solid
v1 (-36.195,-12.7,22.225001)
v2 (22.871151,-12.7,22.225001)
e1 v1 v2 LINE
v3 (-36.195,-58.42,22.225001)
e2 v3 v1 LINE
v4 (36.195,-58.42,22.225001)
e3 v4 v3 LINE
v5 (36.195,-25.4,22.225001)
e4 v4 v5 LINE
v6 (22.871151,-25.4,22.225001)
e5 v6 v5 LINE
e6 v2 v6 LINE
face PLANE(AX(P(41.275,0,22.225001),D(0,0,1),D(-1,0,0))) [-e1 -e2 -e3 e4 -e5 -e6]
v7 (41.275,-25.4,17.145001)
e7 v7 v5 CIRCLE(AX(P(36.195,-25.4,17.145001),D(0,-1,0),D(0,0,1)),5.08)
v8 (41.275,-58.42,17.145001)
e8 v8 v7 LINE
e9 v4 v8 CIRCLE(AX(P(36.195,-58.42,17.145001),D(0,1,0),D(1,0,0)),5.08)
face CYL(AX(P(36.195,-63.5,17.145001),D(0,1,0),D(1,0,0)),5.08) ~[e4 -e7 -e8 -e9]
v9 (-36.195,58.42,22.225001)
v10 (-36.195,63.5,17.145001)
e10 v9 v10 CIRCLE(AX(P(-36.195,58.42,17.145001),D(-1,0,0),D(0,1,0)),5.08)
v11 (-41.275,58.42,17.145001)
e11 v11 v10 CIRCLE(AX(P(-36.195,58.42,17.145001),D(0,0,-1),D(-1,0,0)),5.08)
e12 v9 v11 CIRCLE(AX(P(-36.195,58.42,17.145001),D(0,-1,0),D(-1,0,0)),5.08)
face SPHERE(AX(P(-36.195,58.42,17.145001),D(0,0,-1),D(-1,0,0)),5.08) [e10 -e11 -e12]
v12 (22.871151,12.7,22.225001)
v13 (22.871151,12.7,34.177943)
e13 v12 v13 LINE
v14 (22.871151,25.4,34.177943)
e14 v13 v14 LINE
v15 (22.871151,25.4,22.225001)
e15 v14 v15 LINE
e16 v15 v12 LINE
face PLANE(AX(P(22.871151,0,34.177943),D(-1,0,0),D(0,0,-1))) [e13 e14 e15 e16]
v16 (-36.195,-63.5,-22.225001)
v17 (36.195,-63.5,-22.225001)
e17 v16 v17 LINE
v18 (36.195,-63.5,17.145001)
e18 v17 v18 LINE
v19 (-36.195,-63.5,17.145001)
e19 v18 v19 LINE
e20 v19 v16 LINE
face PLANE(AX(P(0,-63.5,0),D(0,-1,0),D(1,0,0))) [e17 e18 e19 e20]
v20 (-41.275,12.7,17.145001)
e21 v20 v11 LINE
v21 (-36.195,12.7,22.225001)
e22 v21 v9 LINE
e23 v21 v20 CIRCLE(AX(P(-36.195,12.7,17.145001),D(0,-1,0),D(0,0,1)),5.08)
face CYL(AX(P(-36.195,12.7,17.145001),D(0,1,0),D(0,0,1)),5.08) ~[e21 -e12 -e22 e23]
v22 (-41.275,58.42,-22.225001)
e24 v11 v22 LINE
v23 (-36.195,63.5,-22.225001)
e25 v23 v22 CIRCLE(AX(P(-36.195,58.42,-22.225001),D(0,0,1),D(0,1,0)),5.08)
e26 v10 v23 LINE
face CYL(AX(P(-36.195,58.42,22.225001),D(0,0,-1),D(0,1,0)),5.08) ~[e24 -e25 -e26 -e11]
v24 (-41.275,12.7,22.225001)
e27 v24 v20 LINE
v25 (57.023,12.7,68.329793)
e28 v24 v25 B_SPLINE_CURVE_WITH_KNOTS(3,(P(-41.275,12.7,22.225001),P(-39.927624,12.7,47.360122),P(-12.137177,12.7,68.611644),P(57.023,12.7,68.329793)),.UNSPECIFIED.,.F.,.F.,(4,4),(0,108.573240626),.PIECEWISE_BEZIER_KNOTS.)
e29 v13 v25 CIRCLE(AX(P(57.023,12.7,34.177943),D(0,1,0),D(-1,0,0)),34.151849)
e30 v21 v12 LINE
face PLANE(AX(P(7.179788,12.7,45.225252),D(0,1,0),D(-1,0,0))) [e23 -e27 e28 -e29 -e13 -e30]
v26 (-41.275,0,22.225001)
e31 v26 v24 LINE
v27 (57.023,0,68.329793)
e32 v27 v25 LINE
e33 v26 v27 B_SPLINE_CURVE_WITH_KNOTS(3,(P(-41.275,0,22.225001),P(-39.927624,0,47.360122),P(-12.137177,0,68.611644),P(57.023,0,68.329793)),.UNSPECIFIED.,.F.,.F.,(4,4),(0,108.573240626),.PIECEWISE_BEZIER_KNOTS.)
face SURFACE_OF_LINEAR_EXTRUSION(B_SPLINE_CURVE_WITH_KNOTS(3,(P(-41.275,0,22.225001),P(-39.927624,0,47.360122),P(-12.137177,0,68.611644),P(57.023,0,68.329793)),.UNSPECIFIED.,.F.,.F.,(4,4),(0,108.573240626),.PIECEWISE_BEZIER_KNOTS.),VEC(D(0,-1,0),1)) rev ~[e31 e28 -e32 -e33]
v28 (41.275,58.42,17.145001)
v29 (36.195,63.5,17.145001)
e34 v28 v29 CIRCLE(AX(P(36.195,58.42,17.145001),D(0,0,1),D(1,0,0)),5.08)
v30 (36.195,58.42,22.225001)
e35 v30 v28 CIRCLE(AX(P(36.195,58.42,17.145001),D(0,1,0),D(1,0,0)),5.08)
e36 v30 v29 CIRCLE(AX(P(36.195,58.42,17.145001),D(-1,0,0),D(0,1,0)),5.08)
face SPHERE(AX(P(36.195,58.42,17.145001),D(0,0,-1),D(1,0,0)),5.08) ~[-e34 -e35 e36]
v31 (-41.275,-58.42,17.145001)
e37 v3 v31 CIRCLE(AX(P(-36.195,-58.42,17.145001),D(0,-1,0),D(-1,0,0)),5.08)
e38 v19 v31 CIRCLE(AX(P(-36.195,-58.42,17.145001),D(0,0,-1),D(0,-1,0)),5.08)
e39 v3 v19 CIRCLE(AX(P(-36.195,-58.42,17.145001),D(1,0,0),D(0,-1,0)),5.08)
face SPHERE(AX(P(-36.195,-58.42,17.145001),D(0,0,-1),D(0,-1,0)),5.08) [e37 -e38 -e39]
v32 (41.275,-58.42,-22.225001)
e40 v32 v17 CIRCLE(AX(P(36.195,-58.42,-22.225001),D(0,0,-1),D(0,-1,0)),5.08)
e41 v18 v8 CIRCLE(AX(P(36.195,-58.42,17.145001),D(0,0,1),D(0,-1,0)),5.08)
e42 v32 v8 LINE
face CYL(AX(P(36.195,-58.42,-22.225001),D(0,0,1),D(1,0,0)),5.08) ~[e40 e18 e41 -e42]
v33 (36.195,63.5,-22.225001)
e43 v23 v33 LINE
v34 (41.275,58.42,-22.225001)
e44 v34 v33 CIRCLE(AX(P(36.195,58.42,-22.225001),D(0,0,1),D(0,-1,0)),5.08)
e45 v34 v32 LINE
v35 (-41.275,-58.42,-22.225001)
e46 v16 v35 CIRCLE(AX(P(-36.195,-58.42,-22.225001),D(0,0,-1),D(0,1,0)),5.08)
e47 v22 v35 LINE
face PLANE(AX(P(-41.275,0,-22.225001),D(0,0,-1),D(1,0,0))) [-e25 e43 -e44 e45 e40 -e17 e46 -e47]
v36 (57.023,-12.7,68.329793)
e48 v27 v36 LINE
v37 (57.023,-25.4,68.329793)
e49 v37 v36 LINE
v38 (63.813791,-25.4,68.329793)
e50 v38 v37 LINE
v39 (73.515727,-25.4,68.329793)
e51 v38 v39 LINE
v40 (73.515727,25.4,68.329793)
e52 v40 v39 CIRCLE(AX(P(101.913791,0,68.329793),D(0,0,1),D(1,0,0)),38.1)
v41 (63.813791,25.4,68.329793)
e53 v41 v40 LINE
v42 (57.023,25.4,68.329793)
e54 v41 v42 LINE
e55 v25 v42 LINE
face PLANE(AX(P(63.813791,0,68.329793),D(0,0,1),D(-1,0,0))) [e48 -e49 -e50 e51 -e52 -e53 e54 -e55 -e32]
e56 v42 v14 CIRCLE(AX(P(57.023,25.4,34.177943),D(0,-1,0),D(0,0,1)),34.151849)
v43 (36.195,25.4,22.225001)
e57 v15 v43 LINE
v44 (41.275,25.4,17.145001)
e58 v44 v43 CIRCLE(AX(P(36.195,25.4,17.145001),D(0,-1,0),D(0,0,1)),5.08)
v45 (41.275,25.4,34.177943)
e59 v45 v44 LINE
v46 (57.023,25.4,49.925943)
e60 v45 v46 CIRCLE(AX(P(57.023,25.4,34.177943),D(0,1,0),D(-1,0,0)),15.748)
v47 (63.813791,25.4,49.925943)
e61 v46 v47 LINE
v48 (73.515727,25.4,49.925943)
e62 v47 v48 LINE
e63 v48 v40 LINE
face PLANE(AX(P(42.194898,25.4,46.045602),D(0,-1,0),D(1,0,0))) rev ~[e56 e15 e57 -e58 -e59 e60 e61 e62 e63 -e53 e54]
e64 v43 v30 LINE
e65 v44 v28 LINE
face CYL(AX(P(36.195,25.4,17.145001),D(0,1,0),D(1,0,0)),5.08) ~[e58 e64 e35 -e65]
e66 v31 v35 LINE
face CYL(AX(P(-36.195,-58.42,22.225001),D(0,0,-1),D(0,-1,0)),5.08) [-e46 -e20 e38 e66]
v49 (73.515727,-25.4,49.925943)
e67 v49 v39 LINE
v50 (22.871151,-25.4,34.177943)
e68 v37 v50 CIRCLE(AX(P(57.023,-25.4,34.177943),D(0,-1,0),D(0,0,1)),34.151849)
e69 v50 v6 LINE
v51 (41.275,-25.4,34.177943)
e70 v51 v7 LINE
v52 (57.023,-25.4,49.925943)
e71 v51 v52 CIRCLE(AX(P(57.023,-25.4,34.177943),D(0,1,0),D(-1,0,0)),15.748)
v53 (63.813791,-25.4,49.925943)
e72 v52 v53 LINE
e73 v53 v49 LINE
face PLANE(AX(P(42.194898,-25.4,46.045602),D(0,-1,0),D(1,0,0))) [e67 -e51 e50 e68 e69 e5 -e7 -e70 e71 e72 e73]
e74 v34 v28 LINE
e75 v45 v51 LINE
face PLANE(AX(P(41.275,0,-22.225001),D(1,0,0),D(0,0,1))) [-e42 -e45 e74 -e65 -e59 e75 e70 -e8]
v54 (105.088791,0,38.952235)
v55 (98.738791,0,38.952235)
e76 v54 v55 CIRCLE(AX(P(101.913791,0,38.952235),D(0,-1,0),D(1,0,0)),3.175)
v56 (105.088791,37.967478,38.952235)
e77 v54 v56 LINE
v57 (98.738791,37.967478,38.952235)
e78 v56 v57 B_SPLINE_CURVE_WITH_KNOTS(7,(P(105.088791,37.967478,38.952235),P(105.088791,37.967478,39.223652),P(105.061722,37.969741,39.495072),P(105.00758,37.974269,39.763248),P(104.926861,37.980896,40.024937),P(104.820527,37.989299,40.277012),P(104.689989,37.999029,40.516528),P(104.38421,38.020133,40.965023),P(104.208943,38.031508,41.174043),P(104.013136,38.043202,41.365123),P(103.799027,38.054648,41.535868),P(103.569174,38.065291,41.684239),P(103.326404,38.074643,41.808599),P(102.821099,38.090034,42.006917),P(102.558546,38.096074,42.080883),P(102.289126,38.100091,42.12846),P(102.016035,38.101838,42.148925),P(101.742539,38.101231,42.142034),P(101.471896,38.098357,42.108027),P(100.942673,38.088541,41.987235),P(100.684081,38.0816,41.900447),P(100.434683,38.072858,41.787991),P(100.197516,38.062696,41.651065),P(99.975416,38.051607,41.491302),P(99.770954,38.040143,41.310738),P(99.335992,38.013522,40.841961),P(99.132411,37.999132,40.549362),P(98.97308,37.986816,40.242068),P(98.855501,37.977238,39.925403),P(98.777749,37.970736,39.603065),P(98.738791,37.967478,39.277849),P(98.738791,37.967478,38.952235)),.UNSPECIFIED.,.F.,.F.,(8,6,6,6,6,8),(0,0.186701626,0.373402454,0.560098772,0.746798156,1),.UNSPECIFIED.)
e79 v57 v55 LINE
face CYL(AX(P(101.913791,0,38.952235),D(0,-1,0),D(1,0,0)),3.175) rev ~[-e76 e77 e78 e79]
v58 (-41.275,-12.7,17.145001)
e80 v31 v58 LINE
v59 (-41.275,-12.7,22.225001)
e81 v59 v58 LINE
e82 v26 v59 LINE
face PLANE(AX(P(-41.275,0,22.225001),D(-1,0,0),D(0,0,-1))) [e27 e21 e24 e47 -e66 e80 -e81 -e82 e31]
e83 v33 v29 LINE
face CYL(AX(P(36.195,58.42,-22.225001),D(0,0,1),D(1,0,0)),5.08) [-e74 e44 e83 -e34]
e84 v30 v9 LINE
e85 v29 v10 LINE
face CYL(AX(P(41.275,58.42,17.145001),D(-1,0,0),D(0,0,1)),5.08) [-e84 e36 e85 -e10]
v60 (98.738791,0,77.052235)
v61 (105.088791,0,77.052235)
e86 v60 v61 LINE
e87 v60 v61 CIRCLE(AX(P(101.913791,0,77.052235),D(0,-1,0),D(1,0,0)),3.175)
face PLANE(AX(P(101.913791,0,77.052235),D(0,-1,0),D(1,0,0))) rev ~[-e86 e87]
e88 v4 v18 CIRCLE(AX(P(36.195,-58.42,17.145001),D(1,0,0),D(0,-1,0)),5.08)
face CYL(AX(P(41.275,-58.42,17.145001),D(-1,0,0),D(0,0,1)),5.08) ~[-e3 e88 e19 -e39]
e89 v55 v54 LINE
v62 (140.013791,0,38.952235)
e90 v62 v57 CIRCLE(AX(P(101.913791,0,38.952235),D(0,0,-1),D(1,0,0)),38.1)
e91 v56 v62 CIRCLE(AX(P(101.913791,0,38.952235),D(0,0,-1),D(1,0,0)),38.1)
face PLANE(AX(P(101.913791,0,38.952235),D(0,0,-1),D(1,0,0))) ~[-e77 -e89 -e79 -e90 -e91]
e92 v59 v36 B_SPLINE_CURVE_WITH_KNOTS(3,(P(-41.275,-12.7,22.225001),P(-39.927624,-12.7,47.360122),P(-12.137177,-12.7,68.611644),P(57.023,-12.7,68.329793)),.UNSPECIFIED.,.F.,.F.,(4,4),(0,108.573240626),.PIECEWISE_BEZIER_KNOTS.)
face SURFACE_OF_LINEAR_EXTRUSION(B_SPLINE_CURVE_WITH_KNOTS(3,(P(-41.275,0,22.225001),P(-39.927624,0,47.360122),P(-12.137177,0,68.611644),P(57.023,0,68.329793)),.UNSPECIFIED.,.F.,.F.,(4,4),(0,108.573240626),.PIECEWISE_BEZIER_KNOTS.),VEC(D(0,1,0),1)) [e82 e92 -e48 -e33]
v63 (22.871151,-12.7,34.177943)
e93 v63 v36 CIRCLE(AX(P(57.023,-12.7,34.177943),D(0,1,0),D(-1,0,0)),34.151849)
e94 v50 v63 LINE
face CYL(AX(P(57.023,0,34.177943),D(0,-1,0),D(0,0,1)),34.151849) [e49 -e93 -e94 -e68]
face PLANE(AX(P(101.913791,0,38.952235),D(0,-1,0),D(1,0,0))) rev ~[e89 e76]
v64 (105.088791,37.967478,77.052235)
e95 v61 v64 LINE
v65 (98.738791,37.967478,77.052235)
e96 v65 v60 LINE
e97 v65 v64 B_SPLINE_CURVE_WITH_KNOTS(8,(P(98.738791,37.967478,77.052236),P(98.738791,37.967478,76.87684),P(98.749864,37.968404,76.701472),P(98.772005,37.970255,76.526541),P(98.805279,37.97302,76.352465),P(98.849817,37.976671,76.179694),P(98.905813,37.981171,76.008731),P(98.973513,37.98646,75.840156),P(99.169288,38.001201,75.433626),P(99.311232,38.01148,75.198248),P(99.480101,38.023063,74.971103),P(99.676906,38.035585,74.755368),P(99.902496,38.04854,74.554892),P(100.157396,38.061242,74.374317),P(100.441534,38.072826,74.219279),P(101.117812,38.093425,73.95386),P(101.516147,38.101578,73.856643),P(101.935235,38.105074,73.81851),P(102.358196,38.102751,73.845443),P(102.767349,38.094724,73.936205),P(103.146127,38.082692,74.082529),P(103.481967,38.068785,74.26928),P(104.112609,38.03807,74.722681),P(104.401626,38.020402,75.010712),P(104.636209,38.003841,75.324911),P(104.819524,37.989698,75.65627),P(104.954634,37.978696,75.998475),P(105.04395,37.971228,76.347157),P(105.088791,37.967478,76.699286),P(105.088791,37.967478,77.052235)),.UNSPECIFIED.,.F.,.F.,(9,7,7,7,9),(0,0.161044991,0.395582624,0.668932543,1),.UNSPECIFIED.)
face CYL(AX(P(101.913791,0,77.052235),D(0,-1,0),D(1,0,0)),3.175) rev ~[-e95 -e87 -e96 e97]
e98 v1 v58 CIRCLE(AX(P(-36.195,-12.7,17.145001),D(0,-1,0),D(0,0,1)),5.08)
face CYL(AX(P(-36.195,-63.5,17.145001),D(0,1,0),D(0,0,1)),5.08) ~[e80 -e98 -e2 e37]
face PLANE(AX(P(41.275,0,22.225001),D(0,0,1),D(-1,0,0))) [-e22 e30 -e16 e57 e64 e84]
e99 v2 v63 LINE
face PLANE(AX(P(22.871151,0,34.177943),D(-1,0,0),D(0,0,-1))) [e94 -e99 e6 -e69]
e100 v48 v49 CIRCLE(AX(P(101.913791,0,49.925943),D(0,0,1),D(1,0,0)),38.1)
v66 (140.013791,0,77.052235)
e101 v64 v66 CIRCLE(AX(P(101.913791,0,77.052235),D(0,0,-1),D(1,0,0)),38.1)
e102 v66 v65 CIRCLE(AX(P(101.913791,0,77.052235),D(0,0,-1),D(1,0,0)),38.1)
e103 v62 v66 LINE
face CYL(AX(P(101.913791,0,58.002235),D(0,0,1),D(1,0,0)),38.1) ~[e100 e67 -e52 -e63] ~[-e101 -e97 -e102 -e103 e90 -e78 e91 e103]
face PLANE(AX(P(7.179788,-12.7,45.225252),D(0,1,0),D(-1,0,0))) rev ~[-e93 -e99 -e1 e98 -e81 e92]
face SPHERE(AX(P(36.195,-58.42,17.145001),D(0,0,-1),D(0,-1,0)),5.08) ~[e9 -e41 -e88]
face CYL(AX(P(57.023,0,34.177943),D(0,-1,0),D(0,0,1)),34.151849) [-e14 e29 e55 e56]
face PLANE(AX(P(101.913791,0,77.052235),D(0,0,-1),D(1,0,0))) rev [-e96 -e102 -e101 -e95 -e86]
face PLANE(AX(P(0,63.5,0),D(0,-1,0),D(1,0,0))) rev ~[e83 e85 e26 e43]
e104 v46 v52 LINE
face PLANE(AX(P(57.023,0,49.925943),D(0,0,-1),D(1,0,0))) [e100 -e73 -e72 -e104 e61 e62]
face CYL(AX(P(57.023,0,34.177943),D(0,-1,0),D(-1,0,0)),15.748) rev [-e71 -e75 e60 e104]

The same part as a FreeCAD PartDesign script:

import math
import FreeCAD as App
import Part
import Sketcher
from FreeCAD import Vector
Q = App.Units.Quantity


def edges_at(feature, points):
    """Names of the edges that pass closest to the given points."""
    edges = feature.Shape.Edges
    near = lambda p: min(range(len(edges)), key=lambda i: edges[i].distToShape(Part.Vertex(*p))[0])
    return sorted({f"Edge{near(p) + 1}" for p in points})


def add_polygon(sketch, points):
    """Adds a closed chain of lines whose ends are joined by coincident constraints."""
    first, n = sketch.GeometryCount, len(points)
    for a, b in zip(points, points[1:] + points[:1]):
        sketch.addGeometry(Part.LineSegment(App.Vector(*a, 0), App.Vector(*b, 0)), False)
    for i in range(n):
        sketch.addConstraint(Sketcher.Constraint("Coincident", first + i, 2, first + (i + 1) % n, 1))

doc = App.newDocument("Part")
body = doc.addObject("PartDesign::Body", "Body")

# Sketch on XZ plane
sketch1 = doc.addObject("Sketcher::SketchObject", "Sketch")
body.addObject(sketch1)
sketch1.AttachmentSupport = (doc.XZ_Plane, [""])
sketch1.MapMode = "FlatFace"
add_polygon(sketch1, [(-41, 22), (-41, -22), (41, -22), (41, 22)])  # lines 0-3
sketch1.addConstraint([
    Sketcher.Constraint("Vertical", 0),
    Sketcher.Constraint("Horizontal", 1),
    Sketcher.Constraint("Vertical", 2),
    Sketcher.Constraint("Horizontal", 3),
    Sketcher.Constraint("Symmetric", 0, 2, 2, 2, -1, 1),
    Sketcher.Constraint("DistanceX", 1, 1, 1, 2, Q("3.25 in")),
    Sketcher.Constraint("DistanceY", 0, 2, 0, 1, Q("1.7500001 in")),
])
pad1 = doc.addObject("PartDesign::Pad", "Pad")
body.addObject(pad1)
pad1.Profile = sketch1
pad1.Length = Q("5 in")
pad1.Midplane = True

# Sketch on XZ plane
sketch2 = doc.addObject("Sketcher::SketchObject", "Sketch001")
body.addObject(sketch2)
sketch2.AttachmentSupport = (doc.XZ_Plane, [""])
sketch2.MapMode = "FlatFace"
sketch2.addGeometry([
    Part.BSplineCurve([Vector(-41.275, 22.225001, 0), Vector(-39.927624, 47.360122, 0), Vector(-12.137177, 68.611644, 0), Vector(57.023, 68.329793, 0)], [4, 4], [0, 108.573240626], False, 3, [1, 1, 1, 1], False),
    Part.LineSegment(Vector(-41.275, 22.225001, 0), Vector(22.871151, 22.225001, 0)),
    Part.LineSegment(Vector(22.871151, 22.225001, 0), Vector(22.871151, 34.177943, 0)),
    Part.ArcOfCircle(Part.Circle(Vector(57.023, 34.177943, 0), Vector(0, 0, 1), 34.151849), math.radians(90), math.radians(180)),
], False)
sketch2.addConstraint([
    Sketcher.Constraint("Block", 0),
    Sketcher.Constraint("Coincident", 0, 1, 1, 1),
    Sketcher.Constraint("Coincident", 1, 2, 2, 1),
    Sketcher.Constraint("Tangent", 2, 2, 3, 2),
    Sketcher.Constraint("Coincident", 3, 1, 0, 2),
    Sketcher.Constraint("Horizontal", 1),
    Sketcher.Constraint("Vertical", 2),
    Sketcher.Constraint("DistanceX", -1, 1, 3, 3, Q("2.245 in")),
    Sketcher.Constraint("Radius", 3, 34.151849),
])
pad2 = doc.addObject("PartDesign::Pad", "Pad001")
body.addObject(pad2)
pad2.Profile = sketch2
pad2.Length = Q("1 in")
pad2.Midplane = True

# Sketch on XZ plane
sketch3 = doc.addObject("Sketcher::SketchObject", "Sketch002")
body.addObject(sketch3)
sketch3.AttachmentSupport = (doc.XZ_Plane, [""])
sketch3.MapMode = "FlatFace"
sketch3.addGeometry([
    Part.LineSegment(Vector(23, 34, 0), Vector(23, 22, 0)),  # 0
    Part.LineSegment(Vector(23, 22, 0), Vector(41, 22, 0)),  # 1
    Part.LineSegment(Vector(41, 22, 0), Vector(41, 34, 0)),  # 2
    Part.ArcOfCircle(Part.Circle(Vector(57, 34, 0), Vector(0, 0, 1), 16), math.radians(90), math.radians(180)),  # 3
    Part.LineSegment(Vector(57, 50, 0), Vector(64, 50, 0)),  # 4
    Part.LineSegment(Vector(64, 50, 0), Vector(102, 50, 0)),  # 5
    Part.LineSegment(Vector(102, 50, 0), Vector(102, 68, 0)),  # 6
    Part.LineSegment(Vector(102, 68, 0), Vector(64, 68, 0)),  # 7
    Part.LineSegment(Vector(64, 68, 0), Vector(57, 68, 0)),  # 8
    Part.ArcOfCircle(Part.Circle(Vector(57, 34, 0), Vector(0, 0, 1), 34), math.radians(90), math.radians(180)),  # 9
], False)
sketch3.addConstraint([
    Sketcher.Constraint("Coincident", 0, 2, 1, 1),
    Sketcher.Constraint("Coincident", 1, 2, 2, 1),
    Sketcher.Constraint("Tangent", 2, 2, 3, 2),
    Sketcher.Constraint("Tangent", 3, 1, 4, 1),
    Sketcher.Constraint("Coincident", 4, 2, 5, 1),
    Sketcher.Constraint("Coincident", 5, 2, 6, 1),
    Sketcher.Constraint("Coincident", 6, 2, 7, 1),
    Sketcher.Constraint("Coincident", 7, 2, 8, 1),
    Sketcher.Constraint("Tangent", 8, 2, 9, 1),
    Sketcher.Constraint("Tangent", 9, 2, 0, 1),
    Sketcher.Constraint("Vertical", 0),
    Sketcher.Constraint("Horizontal", 1),
    Sketcher.Constraint("Vertical", 2),
    Sketcher.Constraint("Horizontal", 4),
    Sketcher.Constraint("Horizontal", 5),
    Sketcher.Constraint("Vertical", 6),
    Sketcher.Constraint("Horizontal", 7),
    Sketcher.Constraint("Horizontal", 8),
    Sketcher.Constraint("Coincident", 9, 3, 3, 3),
    Sketcher.Constraint("Vertical", 4, 2, 7, 2),
    Sketcher.Constraint("Radius", 3, Q("0.62 in")),
    Sketcher.Constraint("DistanceX", -1, 1, 3, 3, Q("2.245 in")),
    Sketcher.Constraint("DistanceY", -1, 1, 0, 2, Q("0.8750001 in")),
    Sketcher.Constraint("Radius", 9, 34.151849),
    Sketcher.Constraint("DistanceX", 4, 1, 4, 2, 6.790791),
    Sketcher.Constraint("DistanceX", 5, 1, 5, 2, 37.770105),
    Sketcher.Constraint("DistanceY", 0, 2, 0, 1, 11.952942),
])
pad3 = doc.addObject("PartDesign::Pad", "Pad002")
body.addObject(pad3)
pad3.Profile = sketch3
pad3.Length = Q("2 in")
pad3.Midplane = True

# Sketch on XZ plane
sketch4 = doc.addObject("Sketcher::SketchObject", "Sketch003")
body.addObject(sketch4)
sketch4.AttachmentSupport = (doc.XZ_Plane, [""])
sketch4.MapMode = "FlatFace"
add_polygon(sketch4, [(102, 77), (102, 39), (140, 39), (140, 77)])  # lines 0-3
sketch4.addGeometry(Part.LineSegment(Vector(102, 77, 0), Vector(102, 39, 0)), True)  # axis
sketch4.addConstraint([
    Sketcher.Constraint("Vertical", 0),
    Sketcher.Constraint("Horizontal", 1),
    Sketcher.Constraint("Vertical", 2),
    Sketcher.Constraint("Horizontal", 3),
    Sketcher.Constraint("Vertical", 4),
    Sketcher.Constraint("Coincident", 4, 1, 3, 2),
    Sketcher.Constraint("Horizontal", 1, 2, 4, 2),
    Sketcher.Constraint("Equal", 3, 0),
    Sketcher.Constraint("DistanceX", 1, 1, 1, 2, Q("1.5 in")),
    Sketcher.Constraint("DistanceX", -1, 1, 0, 2, 101.913791),
    Sketcher.Constraint("DistanceY", -1, 1, 0, 2, 38.952235),
])
revolution = doc.addObject("PartDesign::Revolution", "Revolution")
body.addObject(revolution)
revolution.Profile = sketch4
revolution.ReferenceAxis = (sketch4, ["Axis0"])
revolution.Angle = 360
doc.recompute()

fillet = doc.addObject("PartDesign::Fillet", "Fillet")
body.addObject(fillet)
fillet.Base = (revolution, edges_at(revolution, [
    (41.275, -63.5, 0),
    (41.275, 63.5, 0),
    (-41.275, 63.5, 0),
    (-41.275, -63.5, 0),
    (0, -63.5, 22.225),
    (-41.275, -38.1, 22.225),
    (-41.275, 38.1, 22.225),
    (41.275, -44.45, 22.225),
    (41.275, 44.45, 22.225),
    (0, 63.5, 22.225),
]))
fillet.Radius = Q("0.2 in")

# Sketch on XZ plane
sketch5 = doc.addObject("Sketcher::SketchObject", "Sketch004")
body.addObject(sketch5)
sketch5.AttachmentSupport = (doc.XZ_Plane, [""])
sketch5.MapMode = "FlatFace"
sketch5.addGeometry([
    Part.Circle(Vector(101.9, 39, 0), Vector(0, 0, 1), 3.2),
    Part.Circle(Vector(101.9, 77.1, 0), Vector(0, 0, 1), 3.2),
], False)
sketch5.addConstraint([
    Sketcher.Constraint("Equal", 0, 1),
    Sketcher.Constraint("Vertical", 0, 3, 1, 3),
    Sketcher.Constraint("Diameter", 0, Q("0.25 in")),
    Sketcher.Constraint("DistanceY", 0, 3, 1, 3, Q("1.5 in")),
    Sketcher.Constraint("DistanceX", -1, 1, 0, 3, 101.913791),
    Sketcher.Constraint("DistanceY", -1, 1, 0, 3, 38.952235),
])
pocket1 = doc.addObject("PartDesign::Pocket", "Pocket")
body.addObject(pocket1)
pocket1.Profile = sketch5
pocket1.Type = "ThroughAll"

doc.recompute()
